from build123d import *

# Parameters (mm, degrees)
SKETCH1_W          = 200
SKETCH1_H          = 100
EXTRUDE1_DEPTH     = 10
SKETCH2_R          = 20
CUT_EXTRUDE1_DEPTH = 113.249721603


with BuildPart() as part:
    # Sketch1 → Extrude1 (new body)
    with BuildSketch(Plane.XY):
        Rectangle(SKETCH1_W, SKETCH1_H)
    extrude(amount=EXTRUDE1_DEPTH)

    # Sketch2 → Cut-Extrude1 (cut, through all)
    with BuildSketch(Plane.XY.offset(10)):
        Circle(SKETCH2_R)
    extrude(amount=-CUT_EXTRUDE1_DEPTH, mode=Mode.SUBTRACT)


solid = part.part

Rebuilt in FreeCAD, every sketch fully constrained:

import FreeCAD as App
import Part
import Sketcher


def add_polygon(sketch, points):
    """Adds a closed chain of lines whose ends are joined by coincident constraints."""
    first, n = sketch.GeometryCount, len(points)
    for a, b in zip(points, points[1:] + points[:1]):
        sketch.addGeometry(Part.LineSegment(App.Vector(*a, 0), App.Vector(*b, 0)), False)
    for i in range(n):
        sketch.addConstraint(Sketcher.Constraint("Coincident", first + i, 2, first + (i + 1) % n, 1))

doc = App.newDocument("Part")
params = doc.addObject("Spreadsheet::Sheet", "Params")
for row, (alias, value) in enumerate([
    ("sketch1_width", "200 mm"),
    ("sketch1_height", "100 mm"),
    ("pad1_length", "10 mm"),
    ("sketch2_diameter", "40 mm"),
], start=1):
    params.set(f"A{row}", alias)
    params.set(f"B{row}", "=" + value)
    params.setAlias(f"B{row}", alias)

body = doc.addObject("PartDesign::Body", "Body")

sketch1 = body.newObject("Sketcher::SketchObject", "Sketch")
sketch1.AttachmentSupport = (doc.getObject("XY_Plane"), [""])
sketch1.MapMode = "FlatFace"
add_polygon(sketch1, [(-100, 50), (-100, -50), (100, -50), (100, 50)])
sketch1.addConstraint(Sketcher.Constraint("Vertical", 0))
sketch1.addConstraint(Sketcher.Constraint("Horizontal", 1))
sketch1.addConstraint(Sketcher.Constraint("Vertical", 2))
sketch1.addConstraint(Sketcher.Constraint("Horizontal", 3))
sketch1.addConstraint(Sketcher.Constraint("Symmetric", 0, 2, 2, 2, -1, 1))
sketch1.addConstraint(Sketcher.Constraint("DistanceX", 1, 1, 1, 2, 200.0))
sketch1.addConstraint(Sketcher.Constraint("DistanceY", 0, 2, 0, 1, 100.0))
sketch1.setExpression("Constraints[9]", "Params.sketch1_width")
sketch1.setExpression("Constraints[10]", "Params.sketch1_height")
pad1 = body.newObject("PartDesign::Pad", "Pad")
pad1.Profile = sketch1
pad1.setExpression("Length", "Params.pad1_length")

sketch2 = body.newObject("Sketcher::SketchObject", "Sketch001")
sketch2.AttachmentSupport = (doc.getObject("XY_Plane"), [""])
sketch2.MapMode = "FlatFace"
sketch2.AttachmentOffset = App.Placement(App.Vector(0, 0, 10), App.Rotation())
sketch2.addGeometry(Part.Circle(App.Vector(0, 0, 0), App.Vector(0, 0, 1), 20), False)
sketch2.addConstraint(Sketcher.Constraint("Coincident", 0, 3, -1, 1))
sketch2.addConstraint(Sketcher.Constraint("Diameter", 0, 40.0))
sketch2.setExpression("Constraints[1]", "Params.sketch2_diameter")
pocket1 = body.newObject("PartDesign::Pocket", "Pocket")
pocket1.Profile = sketch2
pocket1.Type = "ThroughAll"

doc.recompute()
